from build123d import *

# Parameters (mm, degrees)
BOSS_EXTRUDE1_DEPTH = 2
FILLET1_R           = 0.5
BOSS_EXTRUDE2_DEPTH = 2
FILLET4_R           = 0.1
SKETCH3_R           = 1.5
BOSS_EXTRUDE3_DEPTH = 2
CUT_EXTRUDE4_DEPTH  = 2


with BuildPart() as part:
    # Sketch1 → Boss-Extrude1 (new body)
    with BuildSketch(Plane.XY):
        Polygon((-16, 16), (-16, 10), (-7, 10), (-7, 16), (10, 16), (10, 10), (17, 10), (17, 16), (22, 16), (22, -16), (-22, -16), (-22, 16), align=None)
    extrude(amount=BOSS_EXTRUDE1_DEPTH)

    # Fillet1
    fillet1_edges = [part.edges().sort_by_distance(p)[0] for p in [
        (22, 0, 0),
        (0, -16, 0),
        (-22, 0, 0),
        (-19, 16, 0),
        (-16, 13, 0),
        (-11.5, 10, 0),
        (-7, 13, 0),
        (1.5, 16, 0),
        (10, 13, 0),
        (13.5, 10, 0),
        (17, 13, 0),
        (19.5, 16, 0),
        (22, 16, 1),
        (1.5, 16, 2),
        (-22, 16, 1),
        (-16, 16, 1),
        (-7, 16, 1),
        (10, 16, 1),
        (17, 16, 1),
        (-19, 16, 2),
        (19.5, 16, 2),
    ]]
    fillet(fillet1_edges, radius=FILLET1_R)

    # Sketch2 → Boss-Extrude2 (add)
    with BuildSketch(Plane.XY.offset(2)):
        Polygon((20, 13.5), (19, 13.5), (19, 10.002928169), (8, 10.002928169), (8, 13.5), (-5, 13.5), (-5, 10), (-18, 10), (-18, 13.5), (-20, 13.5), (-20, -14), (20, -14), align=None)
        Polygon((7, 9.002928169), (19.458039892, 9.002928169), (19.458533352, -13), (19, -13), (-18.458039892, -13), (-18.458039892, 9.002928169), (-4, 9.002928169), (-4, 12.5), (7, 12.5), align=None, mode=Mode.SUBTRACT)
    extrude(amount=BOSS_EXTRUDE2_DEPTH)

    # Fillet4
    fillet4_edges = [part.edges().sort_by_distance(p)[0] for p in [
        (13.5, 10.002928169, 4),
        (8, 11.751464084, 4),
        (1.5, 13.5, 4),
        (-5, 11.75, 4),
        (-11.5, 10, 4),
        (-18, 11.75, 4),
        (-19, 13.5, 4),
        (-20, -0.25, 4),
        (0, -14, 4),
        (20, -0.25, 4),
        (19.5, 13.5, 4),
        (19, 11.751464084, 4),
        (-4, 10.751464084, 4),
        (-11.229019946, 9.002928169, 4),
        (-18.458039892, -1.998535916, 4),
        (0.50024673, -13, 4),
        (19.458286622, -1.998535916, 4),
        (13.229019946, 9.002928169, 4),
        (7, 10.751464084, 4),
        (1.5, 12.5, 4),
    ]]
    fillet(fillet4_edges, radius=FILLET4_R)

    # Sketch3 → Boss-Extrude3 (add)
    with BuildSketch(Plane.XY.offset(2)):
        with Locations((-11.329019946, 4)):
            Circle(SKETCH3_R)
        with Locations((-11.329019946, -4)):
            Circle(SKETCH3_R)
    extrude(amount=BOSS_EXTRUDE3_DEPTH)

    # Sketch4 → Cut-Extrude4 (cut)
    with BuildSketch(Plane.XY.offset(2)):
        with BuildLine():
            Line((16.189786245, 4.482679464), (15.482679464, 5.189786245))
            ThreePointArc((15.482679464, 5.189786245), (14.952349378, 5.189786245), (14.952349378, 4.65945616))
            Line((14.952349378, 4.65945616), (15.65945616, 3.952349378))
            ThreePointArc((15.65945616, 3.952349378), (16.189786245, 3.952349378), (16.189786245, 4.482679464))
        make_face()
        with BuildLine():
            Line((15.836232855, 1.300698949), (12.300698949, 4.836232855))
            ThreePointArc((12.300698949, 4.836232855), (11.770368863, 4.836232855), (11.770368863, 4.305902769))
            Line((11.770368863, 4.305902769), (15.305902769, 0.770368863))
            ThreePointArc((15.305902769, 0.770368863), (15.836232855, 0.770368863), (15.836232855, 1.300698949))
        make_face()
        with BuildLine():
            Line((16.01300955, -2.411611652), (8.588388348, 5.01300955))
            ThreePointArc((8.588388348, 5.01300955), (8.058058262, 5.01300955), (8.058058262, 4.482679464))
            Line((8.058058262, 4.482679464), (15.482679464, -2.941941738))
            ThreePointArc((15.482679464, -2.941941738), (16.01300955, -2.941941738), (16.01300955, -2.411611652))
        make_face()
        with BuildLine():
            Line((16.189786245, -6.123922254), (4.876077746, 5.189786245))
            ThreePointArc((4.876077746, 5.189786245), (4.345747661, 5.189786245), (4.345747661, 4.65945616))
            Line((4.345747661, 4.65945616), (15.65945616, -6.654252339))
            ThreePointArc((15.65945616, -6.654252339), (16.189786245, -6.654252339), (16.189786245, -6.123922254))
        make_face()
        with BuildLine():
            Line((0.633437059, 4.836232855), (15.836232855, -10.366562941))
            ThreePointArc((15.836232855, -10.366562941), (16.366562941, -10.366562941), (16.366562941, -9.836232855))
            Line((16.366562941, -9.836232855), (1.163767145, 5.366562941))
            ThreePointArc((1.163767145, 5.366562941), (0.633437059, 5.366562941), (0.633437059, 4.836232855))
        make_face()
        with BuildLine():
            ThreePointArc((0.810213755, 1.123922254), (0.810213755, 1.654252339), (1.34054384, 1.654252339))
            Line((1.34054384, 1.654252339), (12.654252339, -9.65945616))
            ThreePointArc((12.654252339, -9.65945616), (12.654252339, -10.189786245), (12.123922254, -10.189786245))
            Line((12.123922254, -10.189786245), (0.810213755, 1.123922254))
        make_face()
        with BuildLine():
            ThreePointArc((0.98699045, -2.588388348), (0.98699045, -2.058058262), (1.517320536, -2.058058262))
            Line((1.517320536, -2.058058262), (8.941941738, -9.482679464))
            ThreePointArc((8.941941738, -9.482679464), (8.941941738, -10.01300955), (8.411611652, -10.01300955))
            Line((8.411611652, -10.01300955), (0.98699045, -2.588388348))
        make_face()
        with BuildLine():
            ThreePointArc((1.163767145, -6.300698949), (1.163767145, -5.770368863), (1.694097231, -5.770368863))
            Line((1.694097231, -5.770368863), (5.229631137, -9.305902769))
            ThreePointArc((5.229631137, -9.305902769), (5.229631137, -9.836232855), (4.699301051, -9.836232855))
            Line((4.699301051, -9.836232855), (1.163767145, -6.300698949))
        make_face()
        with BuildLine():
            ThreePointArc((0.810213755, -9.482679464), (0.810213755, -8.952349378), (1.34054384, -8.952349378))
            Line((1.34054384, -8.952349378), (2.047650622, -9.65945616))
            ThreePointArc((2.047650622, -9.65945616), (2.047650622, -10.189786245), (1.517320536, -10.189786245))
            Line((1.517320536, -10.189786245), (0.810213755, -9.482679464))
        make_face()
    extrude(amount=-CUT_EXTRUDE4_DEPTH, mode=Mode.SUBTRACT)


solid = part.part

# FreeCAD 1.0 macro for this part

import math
import FreeCAD as App
import Part
import Sketcher
from FreeCAD import Vector
Q = App.Units.Quantity


def edges_at(feature, points):
    """Names of the edges that pass closest to the given points."""
    edges = feature.Shape.Edges
    near = lambda p: min(range(len(edges)), key=lambda i: edges[i].distToShape(Part.Vertex(*p))[0])
    return sorted({f"Edge{near(p) + 1}" for p in points})

doc = App.newDocument("Part")
body = doc.addObject("PartDesign::Body", "Body")

sketch1 = doc.addObject("Sketcher::SketchObject", "Sketch")
body.addObject(sketch1)
sketch1.AttachmentSupport = (doc.XY_Plane, [""])
sketch1.MapMode = "FlatFace"
sketch1.addGeometry(Part.LineSegment(Vector(-16, 10, 0), Vector(-16, 16, 0)), False)
sketch1.addGeometry(Part.LineSegment(Vector(-16, 16, 0), Vector(-22, 16, 0)), False)
sketch1.addGeometry(Part.LineSegment(Vector(-22, 16, 0), Vector(-22, -16, 0)), False)
sketch1.addGeometry(Part.LineSegment(Vector(-22, -16, 0), Vector(22, -16, 0)), False)
sketch1.addGeometry(Part.LineSegment(Vector(22, -16, 0), Vector(22, 16, 0)), False)
sketch1.addGeometry(Part.LineSegment(Vector(22, 16, 0), Vector(17, 16, 0)), False)
sketch1.addGeometry(Part.LineSegment(Vector(17, 16, 0), Vector(17, 10, 0)), False)
sketch1.addGeometry(Part.LineSegment(Vector(17, 10, 0), Vector(10, 10, 0)), False)
sketch1.addGeometry(Part.LineSegment(Vector(10, 10, 0), Vector(10, 16, 0)), False)
sketch1.addGeometry(Part.LineSegment(Vector(10, 16, 0), Vector(-7, 16, 0)), False)
sketch1.addGeometry(Part.LineSegment(Vector(-7, 16, 0), Vector(-7, 10, 0)), False)
sketch1.addGeometry(Part.LineSegment(Vector(-7, 10, 0), Vector(-16, 10, 0)), False)
sketch1.addConstraint(Sketcher.Constraint("Coincident", 0, 2, 1, 1))
sketch1.addConstraint(Sketcher.Constraint("Coincident", 1, 2, 2, 1))
sketch1.addConstraint(Sketcher.Constraint("Coincident", 2, 2, 3, 1))
sketch1.addConstraint(Sketcher.Constraint("Coincident", 3, 2, 4, 1))
sketch1.addConstraint(Sketcher.Constraint("Coincident", 4, 2, 5, 1))
sketch1.addConstraint(Sketcher.Constraint("Coincident", 5, 2, 6, 1))
sketch1.addConstraint(Sketcher.Constraint("Coincident", 6, 2, 7, 1))
sketch1.addConstraint(Sketcher.Constraint("Coincident", 7, 2, 8, 1))
sketch1.addConstraint(Sketcher.Constraint("Coincident", 8, 2, 9, 1))
sketch1.addConstraint(Sketcher.Constraint("Coincident", 9, 2, 10, 1))
sketch1.addConstraint(Sketcher.Constraint("Coincident", 10, 2, 11, 1))
sketch1.addConstraint(Sketcher.Constraint("Coincident", 11, 2, 0, 1))
sketch1.addConstraint(Sketcher.Constraint("Vertical", 0))
sketch1.addConstraint(Sketcher.Constraint("Horizontal", 1))
sketch1.addConstraint(Sketcher.Constraint("Vertical", 2))
sketch1.addConstraint(Sketcher.Constraint("Horizontal", 3))
sketch1.addConstraint(Sketcher.Constraint("Vertical", 4))
sketch1.addConstraint(Sketcher.Constraint("Horizontal", 5))
sketch1.addConstraint(Sketcher.Constraint("Vertical", 6))
sketch1.addConstraint(Sketcher.Constraint("Horizontal", 7))
sketch1.addConstraint(Sketcher.Constraint("Vertical", 8))
sketch1.addConstraint(Sketcher.Constraint("Horizontal", 9))
sketch1.addConstraint(Sketcher.Constraint("Vertical", 10))
sketch1.addConstraint(Sketcher.Constraint("Horizontal", 11))
sketch1.addConstraint(Sketcher.Constraint("Symmetric", 1, 2, 3, 2, -1, 1))
sketch1.addConstraint(Sketcher.Constraint("Horizontal", 1, 2, 4, 2))
sketch1.addConstraint(Sketcher.Constraint("Horizontal", 5, 2, 8, 2))
sketch1.addConstraint(Sketcher.Constraint("Horizontal", 7, 2, 10, 2))
sketch1.addConstraint(Sketcher.Constraint("Equal", 1, 0))
sketch1.addConstraint(Sketcher.Constraint("DistanceX", 1, 2, 1, 1, Q("6 mm")))
sketch1.addConstraint(Sketcher.Constraint("DistanceX", 3, 1, 3, 2, Q("44 mm")))
sketch1.addConstraint(Sketcher.Constraint("DistanceX", 5, 2, 5, 1, Q("5 mm")))
sketch1.addConstraint(Sketcher.Constraint("DistanceX", 7, 2, 7, 1, Q("7 mm")))
sketch1.addConstraint(Sketcher.Constraint("DistanceX", 9, 2, 9, 1, Q("17 mm")))
sketch1.addConstraint(Sketcher.Constraint("DistanceY", 2, 2, 2, 1, Q("32 mm")))
pad1 = doc.addObject("PartDesign::Pad", "Pad")
body.addObject(pad1)
pad1.Profile = sketch1
pad1.Length = 2
doc.recompute()

fillet = doc.addObject("PartDesign::Fillet", "Fillet")
body.addObject(fillet)
fillet.Base = (pad1, edges_at(pad1, [
    (22, 0, 0),
    (0, -16, 0),
    (-22, 0, 0),
    (-19, 16, 0),
    (-16, 13, 0),
    (-11.5, 10, 0),
    (-7, 13, 0),
    (1.5, 16, 0),
    (10, 13, 0),
    (13.5, 10, 0),
    (17, 13, 0),
    (19.5, 16, 0),
    (22, 16, 1),
    (1.5, 16, 2),
    (-22, 16, 1),
    (-16, 16, 1),
    (-7, 16, 1),
    (10, 16, 1),
    (17, 16, 1),
    (-19, 16, 2),
    (19.5, 16, 2),
]))
fillet.Radius = 0.5

sketch2 = doc.addObject("Sketcher::SketchObject", "Sketch001")
body.addObject(sketch2)
sketch2.AttachmentSupport = (doc.XY_Plane, [""])
sketch2.MapMode = "FlatFace"
sketch2.AttachmentOffset = App.Placement(Vector(0, 0, 2), App.Rotation())
sketch2.addGeometry(Part.LineSegment(Vector(20, 13.5, 0), Vector(19, 13.5, 0)), False)
sketch2.addGeometry(Part.LineSegment(Vector(19, 13.5, 0), Vector(19, 10, 0)), False)
sketch2.addGeometry(Part.LineSegment(Vector(19, 10, 0), Vector(8, 10, 0)), False)
sketch2.addGeometry(Part.LineSegment(Vector(8, 10, 0), Vector(8, 13.5, 0)), False)
sketch2.addGeometry(Part.LineSegment(Vector(8, 13.5, 0), Vector(-5, 13.5, 0)), False)
sketch2.addGeometry(Part.LineSegment(Vector(-5, 13.5, 0), Vector(-5, 10, 0)), False)
sketch2.addGeometry(Part.LineSegment(Vector(-5, 10, 0), Vector(-18, 10, 0)), False)
sketch2.addGeometry(Part.LineSegment(Vector(-18, 10, 0), Vector(-18, 13.5, 0)), False)
sketch2.addGeometry(Part.LineSegment(Vector(-18, 13.5, 0), Vector(-20, 13.5, 0)), False)
sketch2.addGeometry(Part.LineSegment(Vector(-20, 13.5, 0), Vector(-20, -14, 0)), False)
sketch2.addGeometry(Part.LineSegment(Vector(-20, -14, 0), Vector(20, -14, 0)), False)
sketch2.addGeometry(Part.LineSegment(Vector(20, -14, 0), Vector(20, 13.5, 0)), False)
sketch2.addGeometry(Part.LineSegment(Vector(7, 12.5, 0), Vector(7, 9, 0)), False)
sketch2.addGeometry(Part.LineSegment(Vector(7, 9, 0), Vector(19.5, 9, 0)), False)
sketch2.addGeometry(Part.LineSegment(Vector(19.5, 9, 0), Vector(19.5, -13, 0)), False)
sketch2.addGeometry(Part.LineSegment(Vector(19.5, -13, 0), Vector(-18.5, -13, 0)), False)
sketch2.addGeometry(Part.LineSegment(Vector(-18.5, -13, 0), Vector(-18.5, 9, 0)), False)
sketch2.addGeometry(Part.LineSegment(Vector(-18.5, 9, 0), Vector(-4, 9, 0)), False)
sketch2.addGeometry(Part.LineSegment(Vector(-4, 9, 0), Vector(-4, 12.5, 0)), False)
sketch2.addGeometry(Part.LineSegment(Vector(-4, 12.5, 0), Vector(7, 12.5, 0)), False)
sketch2.addConstraint(Sketcher.Constraint("Coincident", 0, 2, 1, 1))
sketch2.addConstraint(Sketcher.Constraint("Coincident", 1, 2, 2, 1))
sketch2.addConstraint(Sketcher.Constraint("Coincident", 2, 2, 3, 1))
sketch2.addConstraint(Sketcher.Constraint("Coincident", 3, 2, 4, 1))
sketch2.addConstraint(Sketcher.Constraint("Coincident", 4, 2, 5, 1))
sketch2.addConstraint(Sketcher.Constraint("Coincident", 5, 2, 6, 1))
sketch2.addConstraint(Sketcher.Constraint("Coincident", 6, 2, 7, 1))
sketch2.addConstraint(Sketcher.Constraint("Coincident", 7, 2, 8, 1))
sketch2.addConstraint(Sketcher.Constraint("Coincident", 8, 2, 9, 1))
sketch2.addConstraint(Sketcher.Constraint("Coincident", 9, 2, 10, 1))
sketch2.addConstraint(Sketcher.Constraint("Coincident", 10, 2, 11, 1))
sketch2.addConstraint(Sketcher.Constraint("Coincident", 11, 2, 0, 1))
sketch2.addConstraint(Sketcher.Constraint("Coincident", 12, 2, 13, 1))
sketch2.addConstraint(Sketcher.Constraint("Coincident", 13, 2, 14, 1))
sketch2.addConstraint(Sketcher.Constraint("Coincident", 14, 2, 15, 1))
sketch2.addConstraint(Sketcher.Constraint("Coincident", 15, 2, 16, 1))
sketch2.addConstraint(Sketcher.Constraint("Coincident", 16, 2, 17, 1))
sketch2.addConstraint(Sketcher.Constraint("Coincident", 17, 2, 18, 1))
sketch2.addConstraint(Sketcher.Constraint("Coincident", 18, 2, 19, 1))
sketch2.addConstraint(Sketcher.Constraint("Coincident", 19, 2, 12, 1))
sketch2.addConstraint(Sketcher.Constraint("Horizontal", 0))
sketch2.addConstraint(Sketcher.Constraint("Vertical", 1))
sketch2.addConstraint(Sketcher.Constraint("Horizontal", 2))
sketch2.addConstraint(Sketcher.Constraint("Vertical", 3))
sketch2.addConstraint(Sketcher.Constraint("Horizontal", 4))
sketch2.addConstraint(Sketcher.Constraint("Vertical", 5))
sketch2.addConstraint(Sketcher.Constraint("Horizontal", 6))
sketch2.addConstraint(Sketcher.Constraint("Vertical", 7))
sketch2.addConstraint(Sketcher.Constraint("Horizontal", 8))
sketch2.addConstraint(Sketcher.Constraint("Vertical", 9))
sketch2.addConstraint(Sketcher.Constraint("Horizontal", 10))
sketch2.addConstraint(Sketcher.Constraint("Vertical", 11))
sketch2.addConstraint(Sketcher.Constraint("Vertical", 12))
sketch2.addConstraint(Sketcher.Constraint("Horizontal", 13))
sketch2.addConstraint(Sketcher.Constraint("Horizontal", 15))
sketch2.addConstraint(Sketcher.Constraint("Vertical", 16))
sketch2.addConstraint(Sketcher.Constraint("Horizontal", 17))
sketch2.addConstraint(Sketcher.Constraint("Vertical", 18))
sketch2.addConstraint(Sketcher.Constraint("Horizontal", 19))
sketch2.addConstraint(Sketcher.Constraint("Symmetric", 8, 2, 11, 2, -2))
sketch2.addConstraint(Sketcher.Constraint("Horizontal", 0, 2, 3, 2))
sketch2.addConstraint(Sketcher.Constraint("Horizontal", 13, 2, 16, 2))
sketch2.addConstraint(Sketcher.Constraint("Equal", 4, 6))
sketch2.addConstraint(Sketcher.Constraint("Equal", 2, 19))
sketch2.addConstraint(Sketcher.Constraint("Equal", 3, 12))
sketch2.addConstraint(Sketcher.Constraint("DistanceX", 0, 2, 0, 1, Q("1 mm")))
sketch2.addConstraint(Sketcher.Constraint("DistanceX", 2, 2, 2, 1, Q("11 mm")))
sketch2.addConstraint(Sketcher.Constraint("DistanceX", 4, 2, 4, 1, Q("13 mm")))
sketch2.addConstraint(Sketcher.Constraint("DistanceX", 8, 2, 8, 1, Q("2 mm")))
sketch2.addConstraint(Sketcher.Constraint("DistanceY", 5, 2, 5, 1, Q("3.5 mm")))
sketch2.addConstraint(Sketcher.Constraint("DistanceY", 9, 2, 9, 1, Q("27.5 mm")))
sketch2.addConstraint(Sketcher.Constraint("DistanceY", -1, 1, 5, 2, Q("10 mm")))
sketch2.addConstraint(Sketcher.Constraint("DistanceX", -1, 1, 12, 2, Q("7 mm")))
sketch2.addConstraint(Sketcher.Constraint("DistanceY", 14, 2, -1, 1, Q("13 mm")))
sketch2.addConstraint(Sketcher.Constraint("DistanceY", 12, 2, 2, 2, Q("1 mm")))
sketch2.addConstraint(Sketcher.Constraint("DistanceX", 13, 1, 13, 2, Q("12.45804 mm")))
sketch2.addConstraint(Sketcher.Constraint("DistanceX", 17, 1, 17, 2, Q("14.45804 mm")))
sketch2.addConstraint(Sketcher.Constraint("DistanceY", 1, 2, 1, 1, Q("3.497072 mm")))
sketch2.addConstraint(Sketcher.Constraint("DistanceX", 15, 2, 15, 1, Q("37.916573 mm")))
pad2 = doc.addObject("PartDesign::Pad", "Pad001")
body.addObject(pad2)
pad2.Profile = sketch2
pad2.Length = 2
doc.recompute()

fillet2 = doc.addObject("PartDesign::Fillet", "Fillet001")
body.addObject(fillet2)
fillet2.Base = (pad2, edges_at(pad2, [
    (13.5, 10.003, 4),
    (8, 11.751, 4),
    (1.5, 13.5, 4),
    (-5, 11.75, 4),
    (-11.5, 10, 4),
    (-18, 11.75, 4),
    (-19, 13.5, 4),
    (-20, -0.25, 4),
    (0, -14, 4),
    (20, -0.25, 4),
    (19.5, 13.5, 4),
    (19, 11.751, 4),
    (-4, 10.751, 4),
    (-11.229, 9.003, 4),
    (-18.458, -1.999, 4),
    (0.5, -13, 4),
    (19.458, -1.999, 4),
    (13.229, 9.003, 4),
    (7, 10.751, 4),
    (1.5, 12.5, 4),
]))
fillet2.Radius = 0.1

sketch3 = doc.addObject("Sketcher::SketchObject", "Sketch002")
body.addObject(sketch3)
sketch3.AttachmentSupport = (doc.XY_Plane, [""])
sketch3.MapMode = "FlatFace"
sketch3.AttachmentOffset = App.Placement(Vector(0, 0, 2), App.Rotation())
sketch3.addGeometry(Part.Circle(Vector(-11.3, 4, 0), Vector(0, 0, 1), 1.5), False)
sketch3.addGeometry(Part.Circle(Vector(-11.3, -4, 0), Vector(0, 0, 1), 1.5), False)
sketch3.addConstraint(Sketcher.Constraint("Equal", 0, 1))
sketch3.addConstraint(Sketcher.Constraint("Symmetric", 0, 3, 1, 3, -1))
sketch3.addConstraint(Sketcher.Constraint("Diameter", 0, Q("3 mm")))
sketch3.addConstraint(Sketcher.Constraint("DistanceY", -1, 1, 0, 3, Q("4 mm")))
sketch3.addConstraint(Sketcher.Constraint("DistanceX", 0, 3, -1, 1, Q("11.32902 mm")))
pad3 = doc.addObject("PartDesign::Pad", "Pad002")
body.addObject(pad3)
pad3.Profile = sketch3
pad3.Length = 2

sketch4 = doc.addObject("Sketcher::SketchObject", "Sketch003")
body.addObject(sketch4)
sketch4.AttachmentSupport = (doc.XY_Plane, [""])
sketch4.MapMode = "FlatFace"
sketch4.AttachmentOffset = App.Placement(Vector(0, 0, 2), App.Rotation())
sketch4.addGeometry(Part.LineSegment(Vector(16.19, 4.48, 0), Vector(15.48, 5.19, 0)), False)
sketch4.addGeometry(Part.ArcOfCircle(Part.Circle(Vector(15.22, 4.92, 0), Vector(0, 0, 1), 0.38), math.radians(45), math.radians(225)), False)
sketch4.addGeometry(Part.LineSegment(Vector(14.95, 4.66, 0), Vector(15.66, 3.95, 0)), False)
sketch4.addGeometry(Part.ArcOfCircle(Part.Circle(Vector(15.92, 4.22, 0), Vector(0, 0, 1), 0.38), math.radians(-135), math.radians(45)), False)
sketch4.addGeometry(Part.LineSegment(Vector(15.84, 1.3, 0), Vector(12.3, 4.84, 0)), False)
sketch4.addGeometry(Part.ArcOfCircle(Part.Circle(Vector(12.04, 4.57, 0), Vector(0, 0, 1), 0.38), math.radians(45), math.radians(225)), False)
sketch4.addGeometry(Part.LineSegment(Vector(11.77, 4.31, 0), Vector(15.31, 0.77, 0)), False)
sketch4.addGeometry(Part.ArcOfCircle(Part.Circle(Vector(15.57, 1.04, 0), Vector(0, 0, 1), 0.38), math.radians(-135), math.radians(45)), False)
sketch4.addGeometry(Part.LineSegment(Vector(16.01, -2.41, 0), Vector(8.59, 5.01, 0)), False)
sketch4.addGeometry(Part.ArcOfCircle(Part.Circle(Vector(8.32, 4.75, 0), Vector(0, 0, 1), 0.38), math.radians(45), math.radians(225)), False)
sketch4.addGeometry(Part.LineSegment(Vector(8.06, 4.48, 0), Vector(15.48, -2.94, 0)), False)
sketch4.addGeometry(Part.ArcOfCircle(Part.Circle(Vector(15.75, -2.68, 0), Vector(0, 0, 1), 0.38), math.radians(-135), math.radians(45)), False)
sketch4.addGeometry(Part.LineSegment(Vector(16.19, -6.12, 0), Vector(4.88, 5.19, 0)), False)
sketch4.addGeometry(Part.ArcOfCircle(Part.Circle(Vector(4.61, 4.92, 0), Vector(0, 0, 1), 0.37), math.radians(45), math.radians(225)), False)
sketch4.addGeometry(Part.LineSegment(Vector(4.35, 4.66, 0), Vector(15.66, -6.65, 0)), False)
sketch4.addGeometry(Part.ArcOfCircle(Part.Circle(Vector(15.92, -6.39, 0), Vector(0, 0, 1), 0.37), math.radians(-135), math.radians(45)), False)
sketch4.addGeometry(Part.LineSegment(Vector(0.63, 4.84, 0), Vector(15.84, -10.37, 0)), False)
sketch4.addGeometry(Part.ArcOfCircle(Part.Circle(Vector(16.1, -10.1, 0), Vector(0, 0, 1), 0.38), math.radians(-135), math.radians(45)), False)
sketch4.addGeometry(Part.LineSegment(Vector(16.37, -9.84, 0), Vector(1.16, 5.37, 0)), False)
sketch4.addGeometry(Part.ArcOfCircle(Part.Circle(Vector(0.9, 5.1, 0), Vector(0, 0, 1), 0.38), math.radians(45), math.radians(225)), False)
sketch4.addGeometry(Part.ArcOfCircle(Part.Circle(Vector(1.08, 1.39, 0), Vector(0, 0, 1), 0.37), math.radians(45), math.radians(225)), False)
sketch4.addGeometry(Part.LineSegment(Vector(0.81, 1.12, 0), Vector(12.12, -10.19, 0)), False)
sketch4.addGeometry(Part.ArcOfCircle(Part.Circle(Vector(12.39, -9.92, 0), Vector(0, 0, 1), 0.37), math.radians(-135), math.radians(45)), False)
sketch4.addGeometry(Part.LineSegment(Vector(12.65, -9.66, 0), Vector(1.34, 1.65, 0)), False)
sketch4.addGeometry(Part.ArcOfCircle(Part.Circle(Vector(1.25, -2.32, 0), Vector(0, 0, 1), 0.38), math.radians(45), math.radians(225)), False)
sketch4.addGeometry(Part.LineSegment(Vector(0.99, -2.59, 0), Vector(8.41, -10.01, 0)), False)
sketch4.addGeometry(Part.ArcOfCircle(Part.Circle(Vector(8.68, -9.75, 0), Vector(0, 0, 1), 0.38), math.radians(-135), math.radians(45)), False)
sketch4.addGeometry(Part.LineSegment(Vector(8.94, -9.48, 0), Vector(1.52, -2.06, 0)), False)
sketch4.addGeometry(Part.ArcOfCircle(Part.Circle(Vector(1.43, -6.04, 0), Vector(0, 0, 1), 0.38), math.radians(45), math.radians(225)), False)
sketch4.addGeometry(Part.LineSegment(Vector(1.16, -6.3, 0), Vector(4.7, -9.84, 0)), False)
sketch4.addGeometry(Part.ArcOfCircle(Part.Circle(Vector(4.96, -9.57, 0), Vector(0, 0, 1), 0.38), math.radians(-135), math.radians(45)), False)
sketch4.addGeometry(Part.LineSegment(Vector(5.23, -9.31, 0), Vector(1.69, -5.77, 0)), False)
sketch4.addGeometry(Part.ArcOfCircle(Part.Circle(Vector(1.08, -9.22, 0), Vector(0, 0, 1), 0.38), math.radians(45), math.radians(225)), False)
sketch4.addGeometry(Part.LineSegment(Vector(0.81, -9.48, 0), Vector(1.52, -10.19, 0)), False)
sketch4.addGeometry(Part.ArcOfCircle(Part.Circle(Vector(1.78, -9.92, 0), Vector(0, 0, 1), 0.38), math.radians(-135), math.radians(45)), False)
sketch4.addGeometry(Part.LineSegment(Vector(2.05, -9.66, 0), Vector(1.34, -8.95, 0)), False)
sketch4.addConstraint(Sketcher.Constraint("Tangent", 0, 2, 1, 1))
sketch4.addConstraint(Sketcher.Constraint("Tangent", 1, 2, 2, 1))
sketch4.addConstraint(Sketcher.Constraint("Tangent", 2, 2, 3, 1))
sketch4.addConstraint(Sketcher.Constraint("Tangent", 3, 2, 0, 1))
sketch4.addConstraint(Sketcher.Constraint("Tangent", 4, 2, 5, 1))
sketch4.addConstraint(Sketcher.Constraint("Tangent", 5, 2, 6, 1))
sketch4.addConstraint(Sketcher.Constraint("Tangent", 6, 2, 7, 1))
sketch4.addConstraint(Sketcher.Constraint("Tangent", 7, 2, 4, 1))
sketch4.addConstraint(Sketcher.Constraint("Tangent", 8, 2, 9, 1))
sketch4.addConstraint(Sketcher.Constraint("Tangent", 9, 2, 10, 1))
sketch4.addConstraint(Sketcher.Constraint("Tangent", 10, 2, 11, 1))
sketch4.addConstraint(Sketcher.Constraint("Tangent", 11, 2, 8, 1))
sketch4.addConstraint(Sketcher.Constraint("Tangent", 12, 2, 13, 1))
sketch4.addConstraint(Sketcher.Constraint("Tangent", 13, 2, 14, 1))
sketch4.addConstraint(Sketcher.Constraint("Tangent", 14, 2, 15, 1))
sketch4.addConstraint(Sketcher.Constraint("Tangent", 15, 2, 12, 1))
sketch4.addConstraint(Sketcher.Constraint("Tangent", 16, 2, 17, 1))
sketch4.addConstraint(Sketcher.Constraint("Tangent", 17, 2, 18, 1))
sketch4.addConstraint(Sketcher.Constraint("Tangent", 18, 2, 19, 1))
sketch4.addConstraint(Sketcher.Constraint("Tangent", 19, 2, 16, 1))
sketch4.addConstraint(Sketcher.Constraint("Tangent", 20, 2, 21, 1))
sketch4.addConstraint(Sketcher.Constraint("Tangent", 21, 2, 22, 1))
sketch4.addConstraint(Sketcher.Constraint("Tangent", 22, 2, 23, 1))
sketch4.addConstraint(Sketcher.Constraint("Tangent", 23, 2, 20, 1))
sketch4.addConstraint(Sketcher.Constraint("Tangent", 24, 2, 25, 1))
sketch4.addConstraint(Sketcher.Constraint("Tangent", 25, 2, 26, 1))
sketch4.addConstraint(Sketcher.Constraint("Tangent", 26, 2, 27, 1))
sketch4.addConstraint(Sketcher.Constraint("Tangent", 27, 2, 24, 1))
sketch4.addConstraint(Sketcher.Constraint("Tangent", 28, 2, 29, 1))
sketch4.addConstraint(Sketcher.Constraint("Tangent", 29, 2, 30, 1))
sketch4.addConstraint(Sketcher.Constraint("Tangent", 30, 2, 31, 1))
sketch4.addConstraint(Sketcher.Constraint("Tangent", 31, 2, 28, 1))
sketch4.addConstraint(Sketcher.Constraint("Tangent", 32, 2, 33, 1))
sketch4.addConstraint(Sketcher.Constraint("Tangent", 33, 2, 34, 1))
sketch4.addConstraint(Sketcher.Constraint("Tangent", 34, 2, 35, 1))
sketch4.addConstraint(Sketcher.Constraint("Tangent", 35, 2, 32, 1))
sketch4.addConstraint(Sketcher.Constraint("Equal", 1, 3))
sketch4.addConstraint(Sketcher.Constraint("Equal", 3, 5))
sketch4.addConstraint(Sketcher.Constraint("Equal", 5, 7))
sketch4.addConstraint(Sketcher.Constraint("Equal", 7, 9))
sketch4.addConstraint(Sketcher.Constraint("Equal", 9, 11))
sketch4.addConstraint(Sketcher.Constraint("Equal", 11, 13))
sketch4.addConstraint(Sketcher.Constraint("Equal", 13, 15))
sketch4.addConstraint(Sketcher.Constraint("Equal", 15, 17))
sketch4.addConstraint(Sketcher.Constraint("Equal", 17, 19))
sketch4.addConstraint(Sketcher.Constraint("Equal", 19, 20))
sketch4.addConstraint(Sketcher.Constraint("Equal", 20, 22))
sketch4.addConstraint(Sketcher.Constraint("Equal", 22, 24))
sketch4.addConstraint(Sketcher.Constraint("Equal", 24, 26))
sketch4.addConstraint(Sketcher.Constraint("Equal", 26, 28))
sketch4.addConstraint(Sketcher.Constraint("Equal", 28, 30))
sketch4.addConstraint(Sketcher.Constraint("Equal", 30, 32))
sketch4.addConstraint(Sketcher.Constraint("Equal", 32, 34))
sketch4.addConstraint(Sketcher.Constraint("Parallel", 2, 4))
sketch4.addConstraint(Sketcher.Constraint("Parallel", 6, 8))
sketch4.addConstraint(Sketcher.Constraint("Parallel", 10, 12))
sketch4.addConstraint(Sketcher.Constraint("Parallel", 14, 16))
sketch4.addConstraint(Sketcher.Constraint("Parallel", 18, 21))
sketch4.addConstraint(Sketcher.Constraint("Parallel", 23, 25))
sketch4.addConstraint(Sketcher.Constraint("Parallel", 27, 29))
sketch4.addConstraint(Sketcher.Constraint("Parallel", 31, 33))
sketch4.addConstraint(Sketcher.Constraint("Horizontal", 1, 3, 13, 3))
sketch4.addConstraint(Sketcher.Constraint("Horizontal", 22, 3, 34, 3))
sketch4.addConstraint(Sketcher.Constraint("Horizontal", 3, 2, 9, 2))
sketch4.addConstraint(Sketcher.Constraint("Horizontal", 4, 2, 19, 2))
sketch4.addConstraint(Sketcher.Constraint("Horizontal", 17, 2, 29, 2))
sketch4.addConstraint(Sketcher.Constraint("Horizontal", 26, 2, 32, 2))
sketch4.addConstraint(Sketcher.Constraint("Vertical", 3, 3, 15, 3))
sketch4.addConstraint(Sketcher.Constraint("Vertical", 20, 3, 32, 3))
sketch4.addConstraint(Sketcher.Constraint("Vertical", 0, 2, 10, 2))
sketch4.addConstraint(Sketcher.Constraint("Vertical", 7, 2, 16, 2))
sketch4.addConstraint(Sketcher.Constraint("Vertical", 18, 2, 28, 2))
sketch4.addConstraint(Sketcher.Constraint("Vertical", 27, 2, 33, 2))
sketch4.addConstraint(Sketcher.Constraint("Equal", 14, 21))
sketch4.addConstraint(Sketcher.Constraint("Equal", 10, 25))
sketch4.addConstraint(Sketcher.Constraint("Equal", 6, 29))
sketch4.addConstraint(Sketcher.Constraint("Equal", 2, 33))
sketch4.addConstraint(Sketcher.Constraint("Angle", 0, Q("135 deg")))
sketch4.addConstraint(Sketcher.Constraint("Distance", 0, Q("1 mm")))
sketch4.addConstraint(Sketcher.Constraint("Distance", 4, Q("5 mm")))
sketch4.addConstraint(Sketcher.Constraint("Distance", 12, Q("16 mm")))
sketch4.addConstraint(Sketcher.Constraint("Radius", 1, Q("0.375 mm")))
sketch4.addConstraint(Sketcher.Constraint("Distance", 8, Q("10.5 mm")))
sketch4.addConstraint(Sketcher.Constraint("Distance", 16, Q("21.5 mm")))
sketch4.addConstraint(Sketcher.Constraint("DistanceX", -1, 1, 4, 2, Q("12.300699 mm")))
sketch4.addConstraint(Sketcher.Constraint("DistanceY", -1, 1, 7, 2, Q("1.300699 mm")))
sketch4.addConstraint(Sketcher.Constraint("DistanceY", -1, 1, 1, 3, Q("4.924621 mm")))
sketch4.addConstraint(Sketcher.Constraint("DistanceX", -1, 1, 3, 3, Q("15.924621 mm")))
sketch4.addConstraint(Sketcher.Constraint("DistanceX", -1, 1, 20, 3, Q("1.075379 mm")))
sketch4.addConstraint(Sketcher.Constraint("DistanceY", 22, 3, -1, 1, Q("9.924621 mm")))
pocket1 = doc.addObject("PartDesign::Pocket", "Pocket")
body.addObject(pocket1)
pocket1.Profile = sketch4
pocket1.Length = 2

doc.recompute()
